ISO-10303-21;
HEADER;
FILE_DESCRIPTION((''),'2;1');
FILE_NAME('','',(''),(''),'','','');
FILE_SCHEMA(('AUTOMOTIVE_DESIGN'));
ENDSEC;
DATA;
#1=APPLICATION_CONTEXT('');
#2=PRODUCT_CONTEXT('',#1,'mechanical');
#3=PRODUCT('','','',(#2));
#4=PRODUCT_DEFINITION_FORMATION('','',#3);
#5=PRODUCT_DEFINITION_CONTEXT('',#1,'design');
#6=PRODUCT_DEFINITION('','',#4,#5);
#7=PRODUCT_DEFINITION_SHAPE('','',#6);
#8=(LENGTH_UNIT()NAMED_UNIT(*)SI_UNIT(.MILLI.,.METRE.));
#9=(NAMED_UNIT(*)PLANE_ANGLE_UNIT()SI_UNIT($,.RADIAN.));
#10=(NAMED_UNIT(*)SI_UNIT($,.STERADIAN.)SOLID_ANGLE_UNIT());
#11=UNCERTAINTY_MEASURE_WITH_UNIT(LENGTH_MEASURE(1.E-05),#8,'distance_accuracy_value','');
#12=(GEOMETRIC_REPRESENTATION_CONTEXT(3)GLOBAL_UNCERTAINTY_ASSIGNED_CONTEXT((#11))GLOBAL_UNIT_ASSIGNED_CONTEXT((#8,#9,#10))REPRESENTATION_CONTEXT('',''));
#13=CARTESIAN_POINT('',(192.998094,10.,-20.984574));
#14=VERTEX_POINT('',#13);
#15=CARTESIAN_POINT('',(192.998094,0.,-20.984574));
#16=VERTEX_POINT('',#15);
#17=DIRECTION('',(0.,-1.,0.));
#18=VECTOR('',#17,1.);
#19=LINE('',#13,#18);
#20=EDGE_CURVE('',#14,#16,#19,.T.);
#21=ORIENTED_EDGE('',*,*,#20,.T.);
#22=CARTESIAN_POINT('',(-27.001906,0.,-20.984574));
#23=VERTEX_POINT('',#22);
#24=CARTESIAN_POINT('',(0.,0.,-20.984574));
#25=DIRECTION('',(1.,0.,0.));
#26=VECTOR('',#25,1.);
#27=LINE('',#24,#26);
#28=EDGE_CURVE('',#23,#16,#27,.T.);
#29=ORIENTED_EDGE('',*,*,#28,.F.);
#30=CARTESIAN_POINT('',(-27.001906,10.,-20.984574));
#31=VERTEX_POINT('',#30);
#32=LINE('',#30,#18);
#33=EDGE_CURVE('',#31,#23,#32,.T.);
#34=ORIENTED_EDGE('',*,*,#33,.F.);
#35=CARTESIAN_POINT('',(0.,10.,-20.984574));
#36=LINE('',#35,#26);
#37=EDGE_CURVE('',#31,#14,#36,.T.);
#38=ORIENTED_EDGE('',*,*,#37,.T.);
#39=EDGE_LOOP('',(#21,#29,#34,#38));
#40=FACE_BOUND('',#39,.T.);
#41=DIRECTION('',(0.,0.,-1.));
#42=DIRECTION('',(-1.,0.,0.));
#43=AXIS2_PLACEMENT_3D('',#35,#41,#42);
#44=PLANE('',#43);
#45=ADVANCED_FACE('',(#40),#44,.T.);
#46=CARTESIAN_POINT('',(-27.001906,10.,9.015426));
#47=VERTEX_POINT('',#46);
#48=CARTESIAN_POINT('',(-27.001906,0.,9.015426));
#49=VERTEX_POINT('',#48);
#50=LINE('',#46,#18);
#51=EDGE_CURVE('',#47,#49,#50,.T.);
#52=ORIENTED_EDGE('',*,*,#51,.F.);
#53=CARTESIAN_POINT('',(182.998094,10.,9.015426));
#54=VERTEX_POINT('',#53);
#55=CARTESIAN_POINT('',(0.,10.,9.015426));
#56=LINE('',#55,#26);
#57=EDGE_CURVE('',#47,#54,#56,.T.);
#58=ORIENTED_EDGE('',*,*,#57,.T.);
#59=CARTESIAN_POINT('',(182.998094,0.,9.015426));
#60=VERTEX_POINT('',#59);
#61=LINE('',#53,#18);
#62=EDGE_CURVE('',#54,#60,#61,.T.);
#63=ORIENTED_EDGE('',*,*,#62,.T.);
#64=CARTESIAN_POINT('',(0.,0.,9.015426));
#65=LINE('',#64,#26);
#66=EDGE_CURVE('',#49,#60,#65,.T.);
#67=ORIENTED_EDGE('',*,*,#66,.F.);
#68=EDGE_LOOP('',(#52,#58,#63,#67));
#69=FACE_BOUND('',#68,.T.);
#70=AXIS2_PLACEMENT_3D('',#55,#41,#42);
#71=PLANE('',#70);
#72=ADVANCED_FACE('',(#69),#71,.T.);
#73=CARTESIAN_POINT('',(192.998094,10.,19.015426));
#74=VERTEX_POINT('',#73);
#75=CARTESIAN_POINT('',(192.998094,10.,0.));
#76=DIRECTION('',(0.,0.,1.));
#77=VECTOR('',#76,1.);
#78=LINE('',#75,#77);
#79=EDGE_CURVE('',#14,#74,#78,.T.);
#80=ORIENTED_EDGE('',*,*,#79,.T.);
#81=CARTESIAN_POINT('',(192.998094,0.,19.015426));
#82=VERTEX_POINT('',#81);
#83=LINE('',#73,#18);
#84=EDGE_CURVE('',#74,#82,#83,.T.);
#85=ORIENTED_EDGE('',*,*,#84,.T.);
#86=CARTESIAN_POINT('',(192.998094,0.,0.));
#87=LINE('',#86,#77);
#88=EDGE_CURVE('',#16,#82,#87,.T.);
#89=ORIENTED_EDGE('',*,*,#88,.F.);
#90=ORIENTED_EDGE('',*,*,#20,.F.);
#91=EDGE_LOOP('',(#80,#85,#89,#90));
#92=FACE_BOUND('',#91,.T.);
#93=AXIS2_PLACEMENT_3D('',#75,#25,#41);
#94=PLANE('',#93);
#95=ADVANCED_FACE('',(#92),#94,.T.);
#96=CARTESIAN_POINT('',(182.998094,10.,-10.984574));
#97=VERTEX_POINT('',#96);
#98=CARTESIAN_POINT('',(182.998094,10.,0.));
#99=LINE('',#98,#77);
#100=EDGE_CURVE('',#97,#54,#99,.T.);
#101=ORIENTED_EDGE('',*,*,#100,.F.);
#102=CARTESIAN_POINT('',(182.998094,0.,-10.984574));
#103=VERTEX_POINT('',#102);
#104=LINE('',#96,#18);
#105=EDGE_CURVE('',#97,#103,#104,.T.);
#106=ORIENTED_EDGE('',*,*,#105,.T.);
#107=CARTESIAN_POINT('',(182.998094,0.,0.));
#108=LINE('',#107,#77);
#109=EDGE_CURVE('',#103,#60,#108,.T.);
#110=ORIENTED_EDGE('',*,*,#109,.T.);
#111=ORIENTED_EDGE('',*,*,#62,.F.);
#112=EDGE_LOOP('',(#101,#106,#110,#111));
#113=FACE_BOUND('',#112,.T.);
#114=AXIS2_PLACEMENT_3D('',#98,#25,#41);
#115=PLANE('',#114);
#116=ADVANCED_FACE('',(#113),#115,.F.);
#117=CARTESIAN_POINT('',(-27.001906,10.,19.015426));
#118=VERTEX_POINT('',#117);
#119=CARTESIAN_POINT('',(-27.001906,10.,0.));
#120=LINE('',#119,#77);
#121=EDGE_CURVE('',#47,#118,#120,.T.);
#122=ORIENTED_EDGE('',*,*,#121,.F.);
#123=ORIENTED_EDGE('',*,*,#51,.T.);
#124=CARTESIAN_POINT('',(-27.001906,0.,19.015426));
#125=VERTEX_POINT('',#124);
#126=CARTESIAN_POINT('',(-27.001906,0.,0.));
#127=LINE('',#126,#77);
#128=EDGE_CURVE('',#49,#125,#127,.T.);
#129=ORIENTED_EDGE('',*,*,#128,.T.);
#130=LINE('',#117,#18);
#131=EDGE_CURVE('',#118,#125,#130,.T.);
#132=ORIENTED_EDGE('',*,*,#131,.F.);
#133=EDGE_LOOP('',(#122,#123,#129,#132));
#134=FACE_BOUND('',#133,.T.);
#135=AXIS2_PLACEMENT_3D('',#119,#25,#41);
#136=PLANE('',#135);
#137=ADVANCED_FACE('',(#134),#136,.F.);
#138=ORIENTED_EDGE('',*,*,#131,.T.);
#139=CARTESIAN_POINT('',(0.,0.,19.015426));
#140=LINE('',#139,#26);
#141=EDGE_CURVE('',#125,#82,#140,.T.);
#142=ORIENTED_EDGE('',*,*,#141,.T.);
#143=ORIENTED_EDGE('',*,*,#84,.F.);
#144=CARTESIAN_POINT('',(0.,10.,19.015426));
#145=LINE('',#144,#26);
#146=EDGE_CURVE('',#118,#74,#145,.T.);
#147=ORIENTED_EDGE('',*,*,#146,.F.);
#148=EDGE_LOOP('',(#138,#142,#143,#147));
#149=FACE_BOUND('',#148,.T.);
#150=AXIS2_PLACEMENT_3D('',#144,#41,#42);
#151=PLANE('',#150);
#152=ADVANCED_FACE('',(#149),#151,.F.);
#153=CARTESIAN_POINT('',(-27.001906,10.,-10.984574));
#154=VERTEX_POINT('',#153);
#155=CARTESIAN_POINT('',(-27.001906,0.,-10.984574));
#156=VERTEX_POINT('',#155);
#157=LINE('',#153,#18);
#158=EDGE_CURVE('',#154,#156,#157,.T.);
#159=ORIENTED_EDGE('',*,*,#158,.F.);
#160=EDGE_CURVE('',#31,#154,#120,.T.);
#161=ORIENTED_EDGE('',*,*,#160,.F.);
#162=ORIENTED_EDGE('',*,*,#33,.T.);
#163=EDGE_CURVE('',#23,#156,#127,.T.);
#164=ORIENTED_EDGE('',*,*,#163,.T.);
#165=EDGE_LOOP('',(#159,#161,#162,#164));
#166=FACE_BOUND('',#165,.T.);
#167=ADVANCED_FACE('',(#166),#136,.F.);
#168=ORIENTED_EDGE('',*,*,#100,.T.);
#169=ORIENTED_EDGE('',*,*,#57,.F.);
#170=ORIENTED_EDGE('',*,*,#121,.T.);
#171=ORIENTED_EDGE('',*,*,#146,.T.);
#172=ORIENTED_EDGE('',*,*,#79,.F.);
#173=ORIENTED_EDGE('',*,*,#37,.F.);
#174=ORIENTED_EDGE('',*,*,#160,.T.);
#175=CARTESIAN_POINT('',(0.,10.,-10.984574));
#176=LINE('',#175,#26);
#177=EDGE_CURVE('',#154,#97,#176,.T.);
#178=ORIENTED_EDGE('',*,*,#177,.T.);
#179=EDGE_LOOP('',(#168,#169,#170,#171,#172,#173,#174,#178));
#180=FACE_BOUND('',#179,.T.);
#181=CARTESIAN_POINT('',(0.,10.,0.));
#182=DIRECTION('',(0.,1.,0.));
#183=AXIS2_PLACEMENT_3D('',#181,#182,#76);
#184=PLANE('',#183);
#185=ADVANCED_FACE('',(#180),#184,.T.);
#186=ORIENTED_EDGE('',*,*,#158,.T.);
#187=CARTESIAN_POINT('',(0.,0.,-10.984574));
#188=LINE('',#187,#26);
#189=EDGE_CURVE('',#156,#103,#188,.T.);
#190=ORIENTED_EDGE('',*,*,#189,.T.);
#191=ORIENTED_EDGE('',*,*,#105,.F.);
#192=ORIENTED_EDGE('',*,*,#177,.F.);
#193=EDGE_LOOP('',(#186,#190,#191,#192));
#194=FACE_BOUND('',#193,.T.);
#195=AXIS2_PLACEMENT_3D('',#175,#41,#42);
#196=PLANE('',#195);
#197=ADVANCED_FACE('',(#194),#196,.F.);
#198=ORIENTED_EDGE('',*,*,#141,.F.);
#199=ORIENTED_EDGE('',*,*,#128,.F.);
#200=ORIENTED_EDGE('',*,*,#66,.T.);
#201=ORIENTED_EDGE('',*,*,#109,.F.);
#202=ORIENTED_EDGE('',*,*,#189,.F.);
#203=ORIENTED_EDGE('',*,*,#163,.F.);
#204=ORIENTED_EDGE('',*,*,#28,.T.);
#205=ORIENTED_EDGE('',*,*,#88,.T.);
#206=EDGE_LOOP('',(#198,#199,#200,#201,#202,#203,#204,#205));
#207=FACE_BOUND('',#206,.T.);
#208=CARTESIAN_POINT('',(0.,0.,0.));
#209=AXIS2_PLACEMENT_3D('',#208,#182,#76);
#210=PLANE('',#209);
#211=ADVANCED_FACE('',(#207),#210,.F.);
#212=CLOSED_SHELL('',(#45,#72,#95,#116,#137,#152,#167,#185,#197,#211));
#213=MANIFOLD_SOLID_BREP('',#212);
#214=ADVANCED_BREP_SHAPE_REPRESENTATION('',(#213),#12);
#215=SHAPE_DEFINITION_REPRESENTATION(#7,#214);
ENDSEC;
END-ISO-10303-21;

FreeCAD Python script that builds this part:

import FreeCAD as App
import Part
import Sketcher

doc = App.newDocument("Part")
body = doc.addObject("PartDesign::Body", "Body")

sketch1 = body.newObject("Sketcher::SketchObject", "Sketch")
sketch1.AttachmentSupport = (doc.getObject("XZ_Plane"), [""])
sketch1.MapMode = "FlatFace"
sketch1.addGeometry([
    Part.LineSegment(App.Vector(-27, 9, 0), App.Vector(-27, 19, 0)),
    Part.LineSegment(App.Vector(-27, 19, 0), App.Vector(193, 19, 0)),
    Part.LineSegment(App.Vector(193, 19, 0), App.Vector(193, -21, 0)),
    Part.LineSegment(App.Vector(193, -21, 0), App.Vector(-27, -21, 0)),
    Part.LineSegment(App.Vector(-27, -21, 0), App.Vector(-27, -11, 0)),
    Part.LineSegment(App.Vector(-27, -11, 0), App.Vector(183, -11, 0)),
    Part.LineSegment(App.Vector(183, -11, 0), App.Vector(183, 9, 0)),
    Part.LineSegment(App.Vector(183, 9, 0), App.Vector(-27, 9, 0)),
], False)
sketch1.addConstraint([
    Sketcher.Constraint("Coincident", 0, 2, 1, 1),
    Sketcher.Constraint("Coincident", 1, 2, 2, 1),
    Sketcher.Constraint("Coincident", 2, 2, 3, 1),
    Sketcher.Constraint("Coincident", 3, 2, 4, 1),
    Sketcher.Constraint("Coincident", 4, 2, 5, 1),
    Sketcher.Constraint("Coincident", 5, 2, 6, 1),
    Sketcher.Constraint("Coincident", 6, 2, 7, 1),
    Sketcher.Constraint("Coincident", 7, 2, 0, 1),
    Sketcher.Constraint("Vertical", 0),
    Sketcher.Constraint("Horizontal", 1),
    Sketcher.Constraint("Vertical", 2),
    Sketcher.Constraint("Horizontal", 3),
    Sketcher.Constraint("Vertical", 4),
    Sketcher.Constraint("Horizontal", 5),
    Sketcher.Constraint("Vertical", 6),
    Sketcher.Constraint("Horizontal", 7),
    Sketcher.Constraint("Vertical", 0, 2, 3, 2),
    Sketcher.Constraint("Equal", 0, 4),
    Sketcher.Constraint("DistanceX", 1, 1, 1, 2, 220.0),
    Sketcher.Constraint("DistanceX", 5, 1, 5, 2, 210.0),
    Sketcher.Constraint("DistanceY", 0, 1, 0, 2, 10.0),
    Sketcher.Constraint("DistanceY", 2, 2, 2, 1, 40.0),
    Sketcher.Constraint("DistanceX", 0, 2, -1, 1, 27.001906),
    Sketcher.Constraint("DistanceY", -1, 1, 0, 2, 19.015426),
])
pad1 = body.newObject("PartDesign::Pad", "Pad")
pad1.Profile = sketch1
pad1.Length = 10
pad1.Reversed = True

doc.recompute()
